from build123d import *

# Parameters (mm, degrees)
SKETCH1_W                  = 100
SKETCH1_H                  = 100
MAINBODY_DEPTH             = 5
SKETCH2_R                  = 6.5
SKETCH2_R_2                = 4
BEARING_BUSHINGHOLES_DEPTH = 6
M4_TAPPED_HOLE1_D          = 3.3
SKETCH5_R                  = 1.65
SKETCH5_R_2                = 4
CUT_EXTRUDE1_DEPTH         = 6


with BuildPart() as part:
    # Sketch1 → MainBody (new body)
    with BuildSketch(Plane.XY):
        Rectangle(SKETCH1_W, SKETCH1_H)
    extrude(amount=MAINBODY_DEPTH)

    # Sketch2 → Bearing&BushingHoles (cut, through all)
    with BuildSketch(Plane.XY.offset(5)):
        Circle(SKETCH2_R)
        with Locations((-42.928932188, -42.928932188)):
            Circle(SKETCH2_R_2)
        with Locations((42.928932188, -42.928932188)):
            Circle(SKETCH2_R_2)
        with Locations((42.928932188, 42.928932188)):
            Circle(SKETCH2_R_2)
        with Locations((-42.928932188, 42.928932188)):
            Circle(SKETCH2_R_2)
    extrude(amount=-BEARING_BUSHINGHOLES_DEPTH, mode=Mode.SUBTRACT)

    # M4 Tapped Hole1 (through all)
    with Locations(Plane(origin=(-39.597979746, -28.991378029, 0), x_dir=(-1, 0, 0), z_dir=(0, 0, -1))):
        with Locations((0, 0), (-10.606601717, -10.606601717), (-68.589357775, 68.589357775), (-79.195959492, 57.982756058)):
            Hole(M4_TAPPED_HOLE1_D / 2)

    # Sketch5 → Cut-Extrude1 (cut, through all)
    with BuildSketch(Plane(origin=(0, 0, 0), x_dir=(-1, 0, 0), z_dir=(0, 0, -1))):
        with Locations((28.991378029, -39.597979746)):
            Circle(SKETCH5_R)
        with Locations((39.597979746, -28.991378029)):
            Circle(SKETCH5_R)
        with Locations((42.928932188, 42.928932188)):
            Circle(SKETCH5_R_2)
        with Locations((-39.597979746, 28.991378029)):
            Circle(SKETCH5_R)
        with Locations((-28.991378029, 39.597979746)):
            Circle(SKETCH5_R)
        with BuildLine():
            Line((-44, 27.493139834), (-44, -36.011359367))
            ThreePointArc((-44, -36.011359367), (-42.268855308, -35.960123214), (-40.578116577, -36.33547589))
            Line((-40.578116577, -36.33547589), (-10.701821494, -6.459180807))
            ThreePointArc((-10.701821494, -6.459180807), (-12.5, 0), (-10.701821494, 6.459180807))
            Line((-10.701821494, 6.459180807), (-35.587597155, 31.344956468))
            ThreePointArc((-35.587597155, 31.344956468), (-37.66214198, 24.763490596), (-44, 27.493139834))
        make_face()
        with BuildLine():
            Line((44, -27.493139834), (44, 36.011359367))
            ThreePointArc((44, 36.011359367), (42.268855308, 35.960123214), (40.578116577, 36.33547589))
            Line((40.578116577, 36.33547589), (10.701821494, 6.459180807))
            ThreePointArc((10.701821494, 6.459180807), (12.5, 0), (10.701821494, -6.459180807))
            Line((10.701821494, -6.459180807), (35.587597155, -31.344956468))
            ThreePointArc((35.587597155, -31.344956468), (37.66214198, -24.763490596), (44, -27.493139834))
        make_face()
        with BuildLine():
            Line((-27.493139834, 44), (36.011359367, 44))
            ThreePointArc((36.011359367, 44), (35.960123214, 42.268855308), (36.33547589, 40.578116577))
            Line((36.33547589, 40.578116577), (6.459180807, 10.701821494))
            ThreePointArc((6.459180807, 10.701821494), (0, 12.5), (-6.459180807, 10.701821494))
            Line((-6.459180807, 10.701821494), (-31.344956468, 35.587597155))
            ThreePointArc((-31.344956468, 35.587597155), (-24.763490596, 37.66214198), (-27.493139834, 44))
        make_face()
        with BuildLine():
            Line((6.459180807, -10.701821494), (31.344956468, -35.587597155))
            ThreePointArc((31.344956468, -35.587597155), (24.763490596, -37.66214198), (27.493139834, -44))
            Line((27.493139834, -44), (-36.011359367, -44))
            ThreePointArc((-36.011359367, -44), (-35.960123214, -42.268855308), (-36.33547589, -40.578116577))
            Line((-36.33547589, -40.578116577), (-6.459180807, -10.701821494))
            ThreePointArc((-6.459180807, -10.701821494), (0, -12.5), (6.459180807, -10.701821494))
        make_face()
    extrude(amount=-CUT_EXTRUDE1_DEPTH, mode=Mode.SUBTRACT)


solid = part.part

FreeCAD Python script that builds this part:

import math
import FreeCAD as App
import Part
import Sketcher
from FreeCAD import Vector
Q = App.Units.Quantity


def add_polygon(sketch, points):
    """Adds a closed chain of lines whose ends are joined by coincident constraints."""
    first, n = sketch.GeometryCount, len(points)
    for a, b in zip(points, points[1:] + points[:1]):
        sketch.addGeometry(Part.LineSegment(App.Vector(*a, 0), App.Vector(*b, 0)), False)
    for i in range(n):
        sketch.addConstraint(Sketcher.Constraint("Coincident", first + i, 2, first + (i + 1) % n, 1))

doc = App.newDocument("Part")
body = doc.addObject("PartDesign::Body", "Body")

sketch1 = body.newObject("Sketcher::SketchObject", "Sketch")
sketch1.AttachmentSupport = (doc.getObject("XY_Plane"), [""])
sketch1.MapMode = "FlatFace"
add_polygon(sketch1, [(-50, 50), (-50, -50), (50, -50), (50, 50)])
sketch1.addConstraint([
    Sketcher.Constraint("Vertical", 0),
    Sketcher.Constraint("Horizontal", 1),
    Sketcher.Constraint("Vertical", 2),
    Sketcher.Constraint("Horizontal", 3),
    Sketcher.Constraint("Symmetric", 0, 2, 2, 2, -1, 1),
    Sketcher.Constraint("Equal", 3, 0),
    Sketcher.Constraint("DistanceX", 1, 1, 1, 2, Q("100 mm")),
])
pad1 = body.newObject("PartDesign::Pad", "Pad")
pad1.Profile = sketch1
pad1.Length = 5

sketch2 = body.newObject("Sketcher::SketchObject", "Sketch001")
sketch2.AttachmentSupport = (doc.getObject("XY_Plane"), [""])
sketch2.MapMode = "FlatFace"
sketch2.AttachmentOffset = App.Placement(Vector(0, 0, 5), App.Rotation())
sketch2.addGeometry([
    Part.Circle(Vector(0, 0, 0), Vector(0, 0, 1), 6.5),
    Part.Circle(Vector(-42.9, -42.9, 0), Vector(0, 0, 1), 4),
    Part.Circle(Vector(42.9, -42.9, 0), Vector(0, 0, 1), 4),
    Part.Circle(Vector(42.9, 42.9, 0), Vector(0, 0, 1), 4),
    Part.Circle(Vector(-42.9, 42.9, 0), Vector(0, 0, 1), 4),
], False)
sketch2.addConstraint([
    Sketcher.Constraint("Coincident", 0, 3, -1, 1),
    Sketcher.Constraint("Equal", 1, 2),
    Sketcher.Constraint("Equal", 2, 3),
    Sketcher.Constraint("Equal", 3, 4),
    Sketcher.Constraint("Symmetric", 1, 3, 3, 3, -1, 1),
    Sketcher.Constraint("Symmetric", 2, 3, 4, 3, -1, 1),
    Sketcher.Constraint("Symmetric", 1, 3, 2, 3, -2),
    Sketcher.Constraint("Diameter", 0, Q("13 mm")),
    Sketcher.Constraint("Diameter", 1, Q("8 mm")),
    Sketcher.Constraint("DistanceX", 1, 3, -1, 1, Q("42.928932 mm")),
    Sketcher.Constraint("DistanceY", 1, 3, -1, 1, Q("42.928932 mm")),
])
pocket1 = body.newObject("PartDesign::Pocket", "Pocket")
pocket1.Profile = sketch2
pocket1.Type = "ThroughAll"

sketch3 = body.newObject("Sketcher::SketchObject", "Sketch002")
sketch3.AttachmentSupport = (doc.getObject("XY_Plane"), [""])
sketch3.MapMode = "FlatFace"
sketch3.addGeometry([
    Part.Circle(Vector(-39.6, -29, 0), Vector(0, 0, 1), 1.6),
    Part.Circle(Vector(-29, -39.6, 0), Vector(0, 0, 1), 1.6),
    Part.Circle(Vector(29, 39.6, 0), Vector(0, 0, 1), 1.6),
    Part.Circle(Vector(39.6, 29, 0), Vector(0, 0, 1), 1.6),
], False)
sketch3.addConstraint([
    Sketcher.Constraint("Equal", 0, 1),
    Sketcher.Constraint("Equal", 1, 2),
    Sketcher.Constraint("Equal", 2, 3),
    Sketcher.Constraint("Symmetric", 1, 3, 2, 3, -1, 1),
    Sketcher.Constraint("Symmetric", 0, 3, 3, 3, -1, 1),
    Sketcher.Constraint("Diameter", 0, Q("3.3 mm")),
    Sketcher.Constraint("DistanceX", 0, 3, 1, 3, Q("10.606602 mm")),
    Sketcher.Constraint("DistanceY", 1, 3, 0, 3, Q("10.606602 mm")),
    Sketcher.Constraint("DistanceX", 0, 3, -1, 1, Q("39.59798 mm")),
    Sketcher.Constraint("DistanceY", 0, 3, -1, 1, Q("28.991378 mm")),
])
doc.recompute()
hole = body.newObject("PartDesign::Hole", "Hole")
hole.Profile = sketch3
hole.ThreadType = "None"
hole.Diameter = 3.3
hole.DepthType = "ThroughAll"
hole.Reversed = True

sketch4 = body.newObject("Sketcher::SketchObject", "Sketch003")
sketch4.AttachmentSupport = (doc.getObject("XY_Plane"), [""])
sketch4.MapMode = "FlatFace"
sketch4.addGeometry([
    Part.Circle(Vector(-29, -39.6, 0), Vector(0, 0, 1), 1.6),
    Part.Circle(Vector(-39.6, -29, 0), Vector(0, 0, 1), 1.6),
    Part.Circle(Vector(-42.9, 42.9, 0), Vector(0, 0, 1), 4),
    Part.Circle(Vector(39.6, 29, 0), Vector(0, 0, 1), 1.6),
    Part.Circle(Vector(29, 39.6, 0), Vector(0, 0, 1), 1.6),
    Part.LineSegment(Vector(44, 27.5, 0), Vector(44, -36, 0)),
    Part.ArcOfCircle(Part.Circle(Vector(42.9, -42.9, 0), Vector(0, 0, 1), 7), math.radians(81), math.radians(110)),
    Part.LineSegment(Vector(40.6, -36.3, 0), Vector(10.7, -6.5, 0)),
    Part.ArcOfCircle(Part.Circle(Vector(0, 0, 0), Vector(0, 0, 1), 12.5), math.radians(-31), math.radians(31)),
    Part.LineSegment(Vector(10.7, 6.5, 0), Vector(35.6, 31.3, 0)),
    Part.ArcOfCircle(Part.Circle(Vector(39.6, 29, 0), Vector(0, 0, 1), 4.7), math.radians(150), math.radians(341)),
    Part.LineSegment(Vector(-44, -27.5, 0), Vector(-44, 36, 0)),
    Part.ArcOfCircle(Part.Circle(Vector(-42.9, 42.9, 0), Vector(0, 0, 1), 7), math.radians(-99), math.radians(-70)),
    Part.LineSegment(Vector(-40.6, 36.3, 0), Vector(-10.7, 6.5, 0)),
    Part.ArcOfCircle(Part.Circle(Vector(0, 0, 0), Vector(0, 0, 1), 12.5), math.radians(149), math.radians(211)),
    Part.LineSegment(Vector(-10.7, -6.5, 0), Vector(-35.6, -31.3, 0)),
    Part.ArcOfCircle(Part.Circle(Vector(-39.6, -29, 0), Vector(0, 0, 1), 4.7), math.radians(-30), math.radians(161)),
    Part.LineSegment(Vector(-36, 44, 0), Vector(27.5, 44, 0)),
    Part.ArcOfCircle(Part.Circle(Vector(29, 39.6, 0), Vector(0, 0, 1), 4.7), math.radians(109), math.radians(300)),
    Part.LineSegment(Vector(31.3, 35.6, 0), Vector(6.5, 10.7, 0)),
    Part.ArcOfCircle(Part.Circle(Vector(0, 0, 0), Vector(0, 0, 1), 12.5), math.radians(59), math.radians(121)),
    Part.LineSegment(Vector(-6.5, 10.7, 0), Vector(-36.3, 40.6, 0)),
    Part.ArcOfCircle(Part.Circle(Vector(-42.9, 42.9, 0), Vector(0, 0, 1), 7), math.radians(-20), math.radians(9)),
    Part.LineSegment(Vector(-31.3, -35.6, 0), Vector(-6.5, -10.7, 0)),
    Part.ArcOfCircle(Part.Circle(Vector(0, 0, 0), Vector(0, 0, 1), 12.5), math.radians(-121), math.radians(-59)),
    Part.LineSegment(Vector(6.5, -10.7, 0), Vector(36.3, -40.6, 0)),
    Part.ArcOfCircle(Part.Circle(Vector(42.9, -42.9, 0), Vector(0, 0, 1), 7), math.radians(160), math.radians(189)),
    Part.LineSegment(Vector(36, -44, 0), Vector(-27.5, -44, 0)),
    Part.ArcOfCircle(Part.Circle(Vector(-29, -39.6, 0), Vector(0, 0, 1), 4.7), math.radians(-71), math.radians(120)),
], False)
sketch4.addConstraint([
    Sketcher.Constraint("Coincident", 5, 2, 6, 1),
    Sketcher.Constraint("Coincident", 6, 2, 7, 1),
    Sketcher.Constraint("Coincident", 7, 2, 8, 1),
    Sketcher.Constraint("Coincident", 8, 2, 9, 1),
    Sketcher.Constraint("Coincident", 9, 2, 10, 1),
    Sketcher.Constraint("Coincident", 10, 2, 5, 1),
    Sketcher.Constraint("Coincident", 11, 2, 12, 1),
    Sketcher.Constraint("Coincident", 12, 2, 13, 1),
    Sketcher.Constraint("Coincident", 13, 2, 14, 1),
    Sketcher.Constraint("Coincident", 14, 2, 15, 1),
    Sketcher.Constraint("Coincident", 15, 2, 16, 1),
    Sketcher.Constraint("Coincident", 16, 2, 11, 1),
    Sketcher.Constraint("Coincident", 17, 2, 18, 1),
    Sketcher.Constraint("Coincident", 18, 2, 19, 1),
    Sketcher.Constraint("Coincident", 19, 2, 20, 1),
    Sketcher.Constraint("Coincident", 20, 2, 21, 1),
    Sketcher.Constraint("Coincident", 21, 2, 22, 1),
    Sketcher.Constraint("Coincident", 22, 2, 17, 1),
    Sketcher.Constraint("Coincident", 23, 2, 24, 1),
    Sketcher.Constraint("Coincident", 24, 2, 25, 1),
    Sketcher.Constraint("Coincident", 25, 2, 26, 1),
    Sketcher.Constraint("Coincident", 26, 2, 27, 1),
    Sketcher.Constraint("Coincident", 27, 2, 28, 1),
    Sketcher.Constraint("Coincident", 28, 2, 23, 1),
    Sketcher.Constraint("Vertical", 5),
    Sketcher.Constraint("Vertical", 11),
    Sketcher.Constraint("Horizontal", 17),
    Sketcher.Constraint("Horizontal", 27),
    Sketcher.Constraint("Coincident", 8, 3, -1, 1),
    Sketcher.Constraint("Coincident", 14, 3, -1, 1),
    Sketcher.Constraint("Coincident", 20, 3, -1, 1),
    Sketcher.Constraint("Coincident", 24, 3, -1, 1),
    Sketcher.Constraint("Coincident", 10, 3, 3, 3),
    Sketcher.Constraint("Coincident", 12, 3, 2, 3),
    Sketcher.Constraint("Coincident", 16, 3, 1, 3),
    Sketcher.Constraint("Coincident", 18, 3, 4, 3),
    Sketcher.Constraint("Coincident", 22, 3, 2, 3),
    Sketcher.Constraint("Coincident", 26, 3, 6, 3),
    Sketcher.Constraint("Coincident", 28, 3, 0, 3),
    Sketcher.Constraint("Equal", 0, 1),
    Sketcher.Constraint("Equal", 1, 3),
    Sketcher.Constraint("Equal", 3, 4),
    Sketcher.Constraint("Equal", 6, 12),
    Sketcher.Constraint("Equal", 8, 14),
    Sketcher.Constraint("Equal", 10, 16),
    Sketcher.Constraint("Equal", 16, 18),
    Sketcher.Constraint("Equal", 14, 20),
    Sketcher.Constraint("Equal", 12, 22),
    Sketcher.Constraint("Equal", 20, 24),
    Sketcher.Constraint("Equal", 22, 26),
    Sketcher.Constraint("Equal", 18, 28),
    Sketcher.Constraint("Symmetric", 1, 3, 3, 3, -1, 1),
    Sketcher.Constraint("Symmetric", 0, 3, 4, 3, -1, 1),
    Sketcher.Constraint("Symmetric", 2, 3, 6, 3, -1, 1),
    Sketcher.Constraint("Perpendicular", 7, 9),
    Sketcher.Constraint("Perpendicular", 9, 13),
    Sketcher.Constraint("Perpendicular", 13, 15),
    Sketcher.Constraint("Parallel", 15, 19),
    Sketcher.Constraint("Perpendicular", 19, 21),
    Sketcher.Constraint("Perpendicular", 21, 23),
    Sketcher.Constraint("Perpendicular", 23, 25),
    Sketcher.Constraint("Horizontal", 8, 2, 13, 2),
    Sketcher.Constraint("Horizontal", 7, 2, 14, 2),
    Sketcher.Constraint("Horizontal", 19, 2, 20, 2),
    Sketcher.Constraint("Horizontal", 23, 2, 24, 2),
    Sketcher.Constraint("Vertical", 7, 2, 8, 2),
    Sketcher.Constraint("Vertical", 20, 2, 23, 2),
    Sketcher.Constraint("Equal", 17, 27),
    Sketcher.Constraint("Equal", 27, 5),
    Sketcher.Constraint("Equal", 5, 11),
    Sketcher.Constraint("Equal", 15, 19),
    Sketcher.Constraint("Equal", 13, 21),
    Sketcher.Constraint("Diameter", 2, Q("8 mm")),
    Sketcher.Constraint("Radius", 6, Q("7 mm")),
    Sketcher.Constraint("Diameter", 0, Q("3.3 mm")),
    Sketcher.Constraint("Radius", 8, Q("12.5 mm")),
    Sketcher.Constraint("Angle", 7, Q("135 deg")),
    Sketcher.Constraint("Radius", 10, Q("4.65 mm")),
    Sketcher.Constraint("DistanceX", -1, 1, 5, 2, Q("44 mm")),
    Sketcher.Constraint("DistanceY", -1, 1, 17, 2, Q("44 mm")),
    Sketcher.Constraint("DistanceX", 17, 1, 17, 2, Q("63.504499 mm")),
    Sketcher.Constraint("Distance", 9, Q("35.193801 mm")),
    Sketcher.Constraint("DistanceX", 1, 3, 0, 3, Q("10.606602 mm")),
    Sketcher.Constraint("DistanceY", 0, 3, 1, 3, Q("10.606602 mm")),
    Sketcher.Constraint("Distance", 7, Q("42.251462 mm")),
])
pocket2 = body.newObject("PartDesign::Pocket", "Pocket001")
pocket2.Profile = sketch4
pocket2.Type = "ThroughAll"
pocket2.Reversed = True

doc.recompute()
